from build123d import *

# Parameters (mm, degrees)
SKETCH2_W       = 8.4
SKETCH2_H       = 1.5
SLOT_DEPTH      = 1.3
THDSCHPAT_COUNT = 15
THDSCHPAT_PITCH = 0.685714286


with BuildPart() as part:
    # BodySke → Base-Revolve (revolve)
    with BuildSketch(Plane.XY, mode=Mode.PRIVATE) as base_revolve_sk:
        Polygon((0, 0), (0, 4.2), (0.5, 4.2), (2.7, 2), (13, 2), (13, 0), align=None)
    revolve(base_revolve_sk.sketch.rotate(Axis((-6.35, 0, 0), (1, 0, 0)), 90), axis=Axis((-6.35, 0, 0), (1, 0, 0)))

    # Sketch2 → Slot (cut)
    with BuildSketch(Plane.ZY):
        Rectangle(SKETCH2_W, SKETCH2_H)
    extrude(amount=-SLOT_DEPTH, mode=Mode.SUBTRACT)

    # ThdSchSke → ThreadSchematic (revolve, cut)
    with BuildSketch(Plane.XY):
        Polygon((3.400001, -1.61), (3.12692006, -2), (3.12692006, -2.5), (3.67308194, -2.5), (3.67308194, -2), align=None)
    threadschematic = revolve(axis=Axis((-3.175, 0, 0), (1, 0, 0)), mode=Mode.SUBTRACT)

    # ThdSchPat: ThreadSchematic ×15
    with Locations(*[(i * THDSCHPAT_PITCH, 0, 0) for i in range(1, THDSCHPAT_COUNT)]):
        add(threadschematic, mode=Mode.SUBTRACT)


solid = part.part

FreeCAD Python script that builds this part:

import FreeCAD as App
import Part
import Sketcher
Q = App.Units.Quantity

doc = App.newDocument("Part")
params = doc.addObject("Spreadsheet::Sheet", "Params")
for row, (alias, value) in enumerate([
    ("sketch1_width", "13 mm"),
    ("sketch1_height", "2 mm"),
    ("sketch1_width2", "10.3 mm"),
    ("sketch1_width3", "0.5 mm"),
    ("revolution_angle", "360 deg"),
    ("sketch2_width", "1.5 mm"),
    ("sketch2_height", "8.4 mm"),
    ("pocket1_length", "1.3 mm"),
    ("sketch3_height", "0.5 mm"),
    ("groove_angle", "360 deg"),
    ("linearpattern_pitch", "0.685714 mm"),
], start=1):
    params.set(f"A{row}", alias)
    params.set(f"B{row}", "=" + value)
    params.setAlias(f"B{row}", alias)

body = doc.addObject("PartDesign::Body", "Body")

sketch1 = doc.addObject("Sketcher::SketchObject", "Sketch")
body.addObject(sketch1)
sketch1.AttachmentSupport = (doc.XY_Plane, [""])
sketch1.MapMode = "FlatFace"
sketch1.addGeometry([
    Part.LineSegment(App.Vector(0, 4.2, 0), App.Vector(0, 0, 0)),
    Part.LineSegment(App.Vector(0, 0, 0), App.Vector(13, 0, 0)),
    Part.LineSegment(App.Vector(13, 0, 0), App.Vector(13, 2, 0)),
    Part.LineSegment(App.Vector(13, 2, 0), App.Vector(2.7, 2, 0)),
    Part.LineSegment(App.Vector(2.7, 2, 0), App.Vector(0.5, 4.2, 0)),
    Part.LineSegment(App.Vector(0.5, 4.2, 0), App.Vector(0, 4.2, 0)),
], False)
sketch1.addConstraint([
    Sketcher.Constraint("Coincident", 0, 2, 1, 1),
    Sketcher.Constraint("Coincident", 1, 2, 2, 1),
    Sketcher.Constraint("Coincident", 2, 2, 3, 1),
    Sketcher.Constraint("Coincident", 3, 2, 4, 1),
    Sketcher.Constraint("Coincident", 4, 2, 5, 1),
    Sketcher.Constraint("Coincident", 5, 2, 0, 1),
    Sketcher.Constraint("Vertical", 0),
    Sketcher.Constraint("Horizontal", 1),
    Sketcher.Constraint("Vertical", 2),
    Sketcher.Constraint("Horizontal", 3),
    Sketcher.Constraint("Horizontal", 5),
    Sketcher.Constraint("Coincident", 0, 2, -1, 1),
    Sketcher.Constraint("DistanceX", 1, 1, 1, 2, Q("13 mm")),
    Sketcher.Constraint("DistanceY", 2, 1, 2, 2, Q("2 mm")),
    Sketcher.Constraint("Angle", 4, Q("135 deg")),
    Sketcher.Constraint("DistanceX", 3, 2, 3, 1, Q("10.3 mm")),
    Sketcher.Constraint("DistanceX", 5, 2, 5, 1, Q("0.5 mm")),
])
sketch1.setExpression("Constraints[12]", "Params.sketch1_width")
sketch1.setExpression("Constraints[13]", "Params.sketch1_height")
sketch1.setExpression("Constraints[15]", "Params.sketch1_width2")
sketch1.setExpression("Constraints[16]", "Params.sketch1_width3")
revolution = doc.addObject("PartDesign::Revolution", "Revolution")
body.addObject(revolution)
revolution.Profile = sketch1
revolution.ReferenceAxis = (sketch1, ["H_Axis"])
revolution.setExpression("Angle", "Params.revolution_angle")

sketch2 = doc.addObject("Sketcher::SketchObject", "Sketch001")
body.addObject(sketch2)
sketch2.AttachmentSupport = (doc.YZ_Plane, [""])
sketch2.MapMode = "FlatFace"
sketch2.addGeometry([
    Part.LineSegment(App.Vector(0.8, -4.2, 0), App.Vector(-0.8, -4.2, 0)),
    Part.LineSegment(App.Vector(-0.8, -4.2, 0), App.Vector(-0.8, 4.2, 0)),
    Part.LineSegment(App.Vector(-0.8, 4.2, 0), App.Vector(0.8, 4.2, 0)),
    Part.LineSegment(App.Vector(0.8, 4.2, 0), App.Vector(0.8, -4.2, 0)),
], False)
sketch2.addConstraint([
    Sketcher.Constraint("Coincident", 0, 2, 1, 1),
    Sketcher.Constraint("Coincident", 1, 2, 2, 1),
    Sketcher.Constraint("Coincident", 2, 2, 3, 1),
    Sketcher.Constraint("Coincident", 3, 2, 0, 1),
    Sketcher.Constraint("Horizontal", 0),
    Sketcher.Constraint("Vertical", 1),
    Sketcher.Constraint("Horizontal", 2),
    Sketcher.Constraint("Vertical", 3),
    Sketcher.Constraint("Symmetric", 0, 2, 2, 2, -1, 1),
    Sketcher.Constraint("DistanceX", 0, 2, 0, 1, Q("1.5 mm")),
    Sketcher.Constraint("DistanceY", 1, 1, 1, 2, Q("8.4 mm")),
])
sketch2.setExpression("Constraints[9]", "Params.sketch2_width")
sketch2.setExpression("Constraints[10]", "Params.sketch2_height")
pocket1 = doc.addObject("PartDesign::Pocket", "Pocket")
body.addObject(pocket1)
pocket1.Profile = sketch2
pocket1.setExpression("Length", "Params.pocket1_length")
pocket1.Reversed = True

sketch3 = doc.addObject("Sketcher::SketchObject", "Sketch002")
body.addObject(sketch3)
sketch3.AttachmentSupport = (doc.XY_Plane, [""])
sketch3.MapMode = "FlatFace"
sketch3.addGeometry([
    Part.LineSegment(App.Vector(3.4, -1.61, 0), App.Vector(3.13, -2, 0)),
    Part.LineSegment(App.Vector(3.13, -2, 0), App.Vector(3.13, -2.5, 0)),
    Part.LineSegment(App.Vector(3.13, -2.5, 0), App.Vector(3.67, -2.5, 0)),
    Part.LineSegment(App.Vector(3.67, -2.5, 0), App.Vector(3.67, -2, 0)),
    Part.LineSegment(App.Vector(3.67, -2, 0), App.Vector(3.4, -1.61, 0)),
], False)
sketch3.addConstraint([
    Sketcher.Constraint("Coincident", 0, 2, 1, 1),
    Sketcher.Constraint("Coincident", 1, 2, 2, 1),
    Sketcher.Constraint("Coincident", 2, 2, 3, 1),
    Sketcher.Constraint("Coincident", 3, 2, 4, 1),
    Sketcher.Constraint("Coincident", 4, 2, 0, 1),
    Sketcher.Constraint("Vertical", 1),
    Sketcher.Constraint("Horizontal", 2),
    Sketcher.Constraint("Vertical", 3),
    Sketcher.Constraint("Horizontal", 0, 2, 3, 2),
    Sketcher.Constraint("Equal", 0, 4),
    Sketcher.Constraint("Angle", 0, Q("-125 deg")),
    Sketcher.Constraint("DistanceY", 1, 2, 1, 1, Q("0.5 mm")),
    Sketcher.Constraint("DistanceY", 0, 2, -1, 1, Q("2 mm")),
    Sketcher.Constraint("DistanceX", -1, 1, 4, 2, Q("3.400001 mm")),
    Sketcher.Constraint("DistanceY", 4, 2, -1, 1, Q("1.61 mm")),
])
sketch3.setExpression("Constraints[11]", "Params.sketch3_height")
groove = doc.addObject("PartDesign::Groove", "Groove")
body.addObject(groove)
groove.Profile = sketch3
groove.ReferenceAxis = (sketch3, ["H_Axis"])
groove.setExpression("Angle", "Params.groove_angle")
doc.recompute()

linearpattern = doc.addObject("PartDesign::LinearPattern", "LinearPattern")
body.addObject(linearpattern)
linearpattern.Originals = [groove]
linearpattern.Direction = (doc.X_Axis, [""])
linearpattern.Mode = "offset"
linearpattern.setExpression("Offset", "Params.linearpattern_pitch")
linearpattern.Occurrences = 15
body.Tip = linearpattern

doc.recompute()
